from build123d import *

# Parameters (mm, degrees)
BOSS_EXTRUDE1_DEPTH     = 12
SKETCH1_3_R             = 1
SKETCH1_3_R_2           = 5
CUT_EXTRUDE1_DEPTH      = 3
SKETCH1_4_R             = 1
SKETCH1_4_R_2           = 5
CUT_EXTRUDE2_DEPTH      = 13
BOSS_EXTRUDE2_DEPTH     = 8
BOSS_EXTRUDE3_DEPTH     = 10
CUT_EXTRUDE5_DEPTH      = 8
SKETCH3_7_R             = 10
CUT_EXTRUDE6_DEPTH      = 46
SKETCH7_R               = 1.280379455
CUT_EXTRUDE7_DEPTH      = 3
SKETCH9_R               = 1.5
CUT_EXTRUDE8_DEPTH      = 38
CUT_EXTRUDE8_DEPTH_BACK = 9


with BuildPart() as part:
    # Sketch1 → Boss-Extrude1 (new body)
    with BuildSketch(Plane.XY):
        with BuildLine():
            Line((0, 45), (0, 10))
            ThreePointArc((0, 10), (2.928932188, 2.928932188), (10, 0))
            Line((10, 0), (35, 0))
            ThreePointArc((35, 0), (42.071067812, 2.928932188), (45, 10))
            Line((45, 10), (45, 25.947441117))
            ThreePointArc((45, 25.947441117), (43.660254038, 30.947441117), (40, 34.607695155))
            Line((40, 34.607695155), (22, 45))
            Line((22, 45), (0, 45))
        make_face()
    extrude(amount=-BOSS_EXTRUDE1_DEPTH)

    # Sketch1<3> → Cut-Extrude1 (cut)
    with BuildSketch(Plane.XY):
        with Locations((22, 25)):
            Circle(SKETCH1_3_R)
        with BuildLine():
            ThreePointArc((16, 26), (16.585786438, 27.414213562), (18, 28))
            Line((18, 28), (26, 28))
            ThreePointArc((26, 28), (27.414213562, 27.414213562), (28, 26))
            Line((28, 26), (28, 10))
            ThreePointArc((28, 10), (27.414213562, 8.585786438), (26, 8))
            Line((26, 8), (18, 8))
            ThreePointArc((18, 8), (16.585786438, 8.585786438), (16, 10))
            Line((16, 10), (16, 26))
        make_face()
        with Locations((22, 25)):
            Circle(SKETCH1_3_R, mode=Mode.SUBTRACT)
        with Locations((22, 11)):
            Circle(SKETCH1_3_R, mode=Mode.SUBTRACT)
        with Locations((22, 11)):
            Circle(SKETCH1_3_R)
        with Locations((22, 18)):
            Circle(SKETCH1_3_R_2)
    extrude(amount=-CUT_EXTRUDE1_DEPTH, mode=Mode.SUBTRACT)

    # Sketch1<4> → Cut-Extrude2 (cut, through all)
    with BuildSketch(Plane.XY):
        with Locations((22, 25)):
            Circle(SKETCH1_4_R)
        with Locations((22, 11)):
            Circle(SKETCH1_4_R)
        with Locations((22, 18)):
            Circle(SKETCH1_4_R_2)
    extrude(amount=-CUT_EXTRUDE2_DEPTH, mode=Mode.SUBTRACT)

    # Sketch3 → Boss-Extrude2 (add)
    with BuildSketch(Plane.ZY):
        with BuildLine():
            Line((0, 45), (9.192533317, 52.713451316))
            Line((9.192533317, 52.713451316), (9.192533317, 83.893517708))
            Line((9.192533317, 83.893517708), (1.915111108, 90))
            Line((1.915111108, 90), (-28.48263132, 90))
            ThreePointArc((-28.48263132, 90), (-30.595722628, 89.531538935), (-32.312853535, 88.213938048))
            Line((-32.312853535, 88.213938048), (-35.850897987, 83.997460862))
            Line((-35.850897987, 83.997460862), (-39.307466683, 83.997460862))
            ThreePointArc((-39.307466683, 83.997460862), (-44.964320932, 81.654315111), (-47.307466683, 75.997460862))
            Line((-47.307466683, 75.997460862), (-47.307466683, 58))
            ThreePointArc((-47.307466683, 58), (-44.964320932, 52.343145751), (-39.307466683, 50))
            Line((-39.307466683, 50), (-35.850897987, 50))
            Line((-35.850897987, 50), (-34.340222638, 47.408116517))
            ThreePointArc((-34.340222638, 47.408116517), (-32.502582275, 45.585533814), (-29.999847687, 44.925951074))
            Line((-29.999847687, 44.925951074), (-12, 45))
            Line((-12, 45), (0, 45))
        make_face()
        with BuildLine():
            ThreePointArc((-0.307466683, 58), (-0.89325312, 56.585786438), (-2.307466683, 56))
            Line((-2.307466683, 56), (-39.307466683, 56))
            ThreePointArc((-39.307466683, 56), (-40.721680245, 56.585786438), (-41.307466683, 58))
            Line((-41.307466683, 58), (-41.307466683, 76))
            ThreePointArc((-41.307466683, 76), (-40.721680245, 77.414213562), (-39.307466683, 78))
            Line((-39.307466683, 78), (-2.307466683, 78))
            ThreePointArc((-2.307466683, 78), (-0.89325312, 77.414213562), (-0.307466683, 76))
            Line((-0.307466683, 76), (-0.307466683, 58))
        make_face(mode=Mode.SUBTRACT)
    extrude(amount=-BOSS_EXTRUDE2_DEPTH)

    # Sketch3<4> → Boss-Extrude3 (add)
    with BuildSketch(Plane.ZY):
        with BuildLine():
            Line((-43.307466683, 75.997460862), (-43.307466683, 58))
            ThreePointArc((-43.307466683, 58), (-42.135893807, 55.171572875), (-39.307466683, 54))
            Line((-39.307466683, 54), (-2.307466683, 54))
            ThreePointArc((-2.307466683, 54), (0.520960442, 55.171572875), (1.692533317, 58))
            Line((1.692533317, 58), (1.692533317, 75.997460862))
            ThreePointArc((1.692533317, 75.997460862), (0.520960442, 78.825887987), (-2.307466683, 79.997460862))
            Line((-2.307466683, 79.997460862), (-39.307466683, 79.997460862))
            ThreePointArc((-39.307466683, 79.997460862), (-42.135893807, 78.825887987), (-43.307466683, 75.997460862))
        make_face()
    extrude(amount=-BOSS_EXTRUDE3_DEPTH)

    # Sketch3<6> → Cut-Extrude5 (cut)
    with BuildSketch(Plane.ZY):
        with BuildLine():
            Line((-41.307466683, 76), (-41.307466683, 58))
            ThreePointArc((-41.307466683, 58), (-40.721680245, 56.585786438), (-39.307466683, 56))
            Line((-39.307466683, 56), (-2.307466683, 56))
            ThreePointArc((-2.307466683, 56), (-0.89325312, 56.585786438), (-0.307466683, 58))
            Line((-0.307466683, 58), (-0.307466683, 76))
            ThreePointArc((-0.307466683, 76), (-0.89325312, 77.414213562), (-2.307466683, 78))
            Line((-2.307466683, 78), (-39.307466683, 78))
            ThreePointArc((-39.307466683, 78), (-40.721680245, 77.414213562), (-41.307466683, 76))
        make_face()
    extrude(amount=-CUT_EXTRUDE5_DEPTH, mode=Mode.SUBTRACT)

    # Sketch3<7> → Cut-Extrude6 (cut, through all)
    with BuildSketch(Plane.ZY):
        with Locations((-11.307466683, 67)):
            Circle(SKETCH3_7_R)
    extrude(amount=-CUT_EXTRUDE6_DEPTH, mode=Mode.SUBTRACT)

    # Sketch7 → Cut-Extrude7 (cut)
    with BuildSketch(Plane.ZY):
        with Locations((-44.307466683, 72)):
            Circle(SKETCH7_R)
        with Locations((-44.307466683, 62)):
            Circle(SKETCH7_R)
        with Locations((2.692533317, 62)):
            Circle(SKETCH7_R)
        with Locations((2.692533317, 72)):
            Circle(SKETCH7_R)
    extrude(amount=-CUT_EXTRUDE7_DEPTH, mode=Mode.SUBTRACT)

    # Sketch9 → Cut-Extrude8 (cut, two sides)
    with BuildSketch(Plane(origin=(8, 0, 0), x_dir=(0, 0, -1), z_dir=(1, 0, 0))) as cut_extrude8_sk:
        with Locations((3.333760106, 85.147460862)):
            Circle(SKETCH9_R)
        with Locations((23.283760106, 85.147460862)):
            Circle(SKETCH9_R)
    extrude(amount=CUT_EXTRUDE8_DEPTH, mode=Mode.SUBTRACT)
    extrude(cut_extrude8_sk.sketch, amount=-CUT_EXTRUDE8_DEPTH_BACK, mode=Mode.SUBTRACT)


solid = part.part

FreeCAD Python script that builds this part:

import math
import FreeCAD as App
import Part
import Sketcher
from FreeCAD import Vector
Q = App.Units.Quantity

doc = App.newDocument("Part")
body = doc.addObject("PartDesign::Body", "Body")

# Sketch on XY plane
sketch1 = body.newObject("Sketcher::SketchObject", "Sketch")
sketch1.AttachmentSupport = (doc.getObject("XY_Plane"), [""])
sketch1.MapMode = "FlatFace"
sketch1.addGeometry([
    Part.LineSegment(Vector(0, 45, 0), Vector(0, 10, 0)),  # 0
    Part.ArcOfCircle(Part.Circle(Vector(10, 10, 0), Vector(0, 0, 1), 10), math.radians(180), math.radians(270)),  # 1
    Part.LineSegment(Vector(10, 0, 0), Vector(35, 0, 0)),  # 2
    Part.ArcOfCircle(Part.Circle(Vector(35, 10, 0), Vector(0, 0, 1), 10), math.radians(-90), math.radians(0)),  # 3
    Part.LineSegment(Vector(45, 10, 0), Vector(45, 26, 0)),  # 4
    Part.ArcOfCircle(Part.Circle(Vector(35, 26, 0), Vector(0, 0, 1), 10), math.radians(0), math.radians(60)),  # 5
    Part.LineSegment(Vector(40, 35, 0), Vector(22, 45, 0)),  # 6
    Part.LineSegment(Vector(22, 45, 0), Vector(0, 45, 0)),  # 7
], False)
sketch1.addConstraint([
    Sketcher.Constraint("Tangent", 0, 2, 1, 1),
    Sketcher.Constraint("Tangent", 1, 2, 2, 1),
    Sketcher.Constraint("Tangent", 2, 2, 3, 1),
    Sketcher.Constraint("Tangent", 3, 2, 4, 1),
    Sketcher.Constraint("Tangent", 4, 2, 5, 1),
    Sketcher.Constraint("Tangent", 5, 2, 6, 1),
    Sketcher.Constraint("Coincident", 6, 2, 7, 1),
    Sketcher.Constraint("Coincident", 7, 2, 0, 1),
    Sketcher.Constraint("Vertical", 0),
    Sketcher.Constraint("Horizontal", 2),
    Sketcher.Constraint("Vertical", 4),
    Sketcher.Constraint("Horizontal", 7),
    Sketcher.Constraint("Equal", 1, 3),
    Sketcher.Constraint("Equal", 3, 5),
    Sketcher.Constraint("PointOnObject", 0, 2, -2),
    Sketcher.Constraint("PointOnObject", 1, 2, -1),
    Sketcher.Constraint("Radius", 1, Q("10 mm")),
    Sketcher.Constraint("DistanceX", 2, 1, 2, 2, Q("25 mm")),
    Sketcher.Constraint("DistanceX", 7, 2, 7, 1, Q("22 mm")),
    Sketcher.Constraint("DistanceY", 0, 2, 0, 1, Q("35 mm")),
    Sketcher.Constraint("Angle", 6, Q("150 deg")),
])
pad1 = body.newObject("PartDesign::Pad", "Pad")
pad1.Profile = sketch1
pad1.Length = 12
pad1.Reversed = True

# Sketch on XY plane
sketch2 = body.newObject("Sketcher::SketchObject", "Sketch001")
sketch2.AttachmentSupport = (doc.getObject("XY_Plane"), [""])
sketch2.MapMode = "FlatFace"
sketch2.addGeometry([
    Part.ArcOfCircle(Part.Circle(Vector(18, 26, 0), Vector(0, 0, 1), 2), math.radians(90), math.radians(180)),  # 0
    Part.LineSegment(Vector(16, 26, 0), Vector(16, 10, 0)),  # 1
    Part.ArcOfCircle(Part.Circle(Vector(18, 10, 0), Vector(0, 0, 1), 2), math.radians(-180), math.radians(-90)),  # 2
    Part.LineSegment(Vector(18, 8, 0), Vector(26, 8, 0)),  # 3
    Part.ArcOfCircle(Part.Circle(Vector(26, 10, 0), Vector(0, 0, 1), 2), math.radians(-90), math.radians(0)),  # 4
    Part.LineSegment(Vector(28, 10, 0), Vector(28, 26, 0)),  # 5
    Part.ArcOfCircle(Part.Circle(Vector(26, 26, 0), Vector(0, 0, 1), 2), math.radians(0), math.radians(90)),  # 6
    Part.LineSegment(Vector(26, 28, 0), Vector(18, 28, 0)),  # 7
    Part.Circle(Vector(22, 25, 0), Vector(0, 0, 1), 1),  # 8
], False)
sketch2.addConstraint([
    Sketcher.Constraint("Tangent", 0, 2, 1, 1),
    Sketcher.Constraint("Tangent", 1, 2, 2, 1),
    Sketcher.Constraint("Tangent", 2, 2, 3, 1),
    Sketcher.Constraint("Tangent", 3, 2, 4, 1),
    Sketcher.Constraint("Tangent", 4, 2, 5, 1),
    Sketcher.Constraint("Tangent", 5, 2, 6, 1),
    Sketcher.Constraint("Tangent", 6, 2, 7, 1),
    Sketcher.Constraint("Tangent", 7, 2, 0, 1),
    Sketcher.Constraint("Vertical", 1),
    Sketcher.Constraint("Horizontal", 3),
    Sketcher.Constraint("Vertical", 5),
    Sketcher.Constraint("Horizontal", 7),
    Sketcher.Constraint("Equal", 0, 2),
    Sketcher.Constraint("Equal", 2, 4),
    Sketcher.Constraint("Equal", 4, 6),
    Sketcher.Constraint("Diameter", 8, Q("2 mm")),
    Sketcher.Constraint("Radius", 0, Q("2 mm")),
    Sketcher.Constraint("DistanceX", 3, 1, 3, 2, Q("8 mm")),
    Sketcher.Constraint("DistanceY", 1, 2, 1, 1, Q("16 mm")),
    Sketcher.Constraint("DistanceX", -1, 1, 0, 3, Q("18 mm")),
    Sketcher.Constraint("DistanceY", -1, 1, 0, 3, Q("26 mm")),
    Sketcher.Constraint("DistanceX", -1, 1, 8, 3, Q("22 mm")),
    Sketcher.Constraint("DistanceY", -1, 1, 8, 3, Q("25 mm")),
])
pocket1 = body.newObject("PartDesign::Pocket", "Pocket")
pocket1.Profile = sketch2
pocket1.Length = 3

# Sketch on XY plane
sketch3 = body.newObject("Sketcher::SketchObject", "Sketch002")
sketch3.AttachmentSupport = (doc.getObject("XY_Plane"), [""])
sketch3.MapMode = "FlatFace"
sketch3.addGeometry([
    Part.Circle(Vector(22, 25, 0), Vector(0, 0, 1), 1),
    Part.Circle(Vector(22, 11, 0), Vector(0, 0, 1), 1),
    Part.Circle(Vector(22, 18, 0), Vector(0, 0, 1), 5),
], False)
sketch3.addConstraint([
    Sketcher.Constraint("Equal", 0, 1),
    Sketcher.Constraint("Vertical", 0, 3, 1, 3),
    Sketcher.Constraint("Vertical", 1, 3, 2, 3),
    Sketcher.Constraint("Diameter", 0, Q("2 mm")),
    Sketcher.Constraint("Diameter", 2, Q("10 mm")),
    Sketcher.Constraint("DistanceX", -1, 1, 0, 3, Q("22 mm")),
    Sketcher.Constraint("DistanceY", -1, 1, 0, 3, Q("25 mm")),
    Sketcher.Constraint("DistanceY", -1, 1, 1, 3, Q("11 mm")),
    Sketcher.Constraint("DistanceY", -1, 1, 2, 3, Q("18 mm")),
])
pocket2 = body.newObject("PartDesign::Pocket", "Pocket001")
pocket2.Profile = sketch3
pocket2.Type = "ThroughAll"

# Sketch on YZ plane
sketch4 = body.newObject("Sketcher::SketchObject", "Sketch003")
sketch4.AttachmentSupport = (doc.getObject("YZ_Plane"), [""])
sketch4.MapMode = "FlatFace"
sketch4.addGeometry([
    Part.LineSegment(Vector(45, 0, 0), Vector(52.7, 9.2, 0)),  # 0
    Part.LineSegment(Vector(52.7, 9.2, 0), Vector(83.9, 9.2, 0)),  # 1
    Part.LineSegment(Vector(83.9, 9.2, 0), Vector(90, 1.9, 0)),  # 2
    Part.LineSegment(Vector(90, 1.9, 0), Vector(90, -28.5, 0)),  # 3
    Part.ArcOfCircle(Part.Circle(Vector(85, -28.5, 0), Vector(0, 0, 1), 5), math.radians(-50), math.radians(0)),  # 4
    Part.LineSegment(Vector(88.2, -32.3, 0), Vector(84, -35.9, 0)),  # 5
    Part.LineSegment(Vector(84, -35.9, 0), Vector(84, -39.3, 0)),  # 6
    Part.ArcOfCircle(Part.Circle(Vector(76, -39.3, 0), Vector(0, 0, 1), 8), math.radians(-90), math.radians(0)),  # 7
    Part.LineSegment(Vector(76, -47.3, 0), Vector(58, -47.3, 0)),  # 8
    Part.ArcOfCircle(Part.Circle(Vector(58, -39.3, 0), Vector(0, 0, 1), 8), math.radians(-180), math.radians(-90)),  # 9
    Part.LineSegment(Vector(50, -39.3, 0), Vector(50, -35.9, 0)),  # 10
    Part.LineSegment(Vector(50, -35.9, 0), Vector(47.4, -34.3, 0)),  # 11
    Part.ArcOfCircle(Part.Circle(Vector(49.9, -30, 0), Vector(0, 0, 1), 5), math.radians(180), math.radians(240)),  # 12
    Part.LineSegment(Vector(44.9, -30, 0), Vector(45, -12, 0)),  # 13
    Part.LineSegment(Vector(45, -12, 0), Vector(45, 0, 0)),  # 14
    Part.LineSegment(Vector(76, -0.3, 0), Vector(58, -0.3, 0)),  # 15
    Part.ArcOfCircle(Part.Circle(Vector(58, -2.3, 0), Vector(0, 0, 1), 2), math.radians(90), math.radians(180)),  # 16
    Part.LineSegment(Vector(56, -2.3, 0), Vector(56, -39.3, 0)),  # 17
    Part.ArcOfCircle(Part.Circle(Vector(58, -39.3, 0), Vector(0, 0, 1), 2), math.radians(-180), math.radians(-90)),  # 18
    Part.LineSegment(Vector(58, -41.3, 0), Vector(76, -41.3, 0)),  # 19
    Part.ArcOfCircle(Part.Circle(Vector(76, -39.3, 0), Vector(0, 0, 1), 2), math.radians(-90), math.radians(0)),  # 20
    Part.LineSegment(Vector(78, -39.3, 0), Vector(78, -2.3, 0)),  # 21
    Part.ArcOfCircle(Part.Circle(Vector(76, -2.3, 0), Vector(0, 0, 1), 2), math.radians(0), math.radians(90)),  # 22
], False)
sketch4.addConstraint([
    Sketcher.Constraint("Coincident", 0, 2, 1, 1),
    Sketcher.Constraint("Coincident", 1, 2, 2, 1),
    Sketcher.Constraint("Coincident", 2, 2, 3, 1),
    Sketcher.Constraint("Tangent", 3, 2, 4, 2),
    Sketcher.Constraint("Tangent", 4, 1, 5, 1),
    Sketcher.Constraint("Coincident", 5, 2, 6, 1),
    Sketcher.Constraint("Tangent", 6, 2, 7, 2),
    Sketcher.Constraint("Tangent", 7, 1, 8, 1),
    Sketcher.Constraint("Tangent", 8, 2, 9, 2),
    Sketcher.Constraint("Tangent", 9, 1, 10, 1),
    Sketcher.Constraint("Coincident", 10, 2, 11, 1),
    Sketcher.Constraint("Tangent", 11, 2, 12, 2),
    Sketcher.Constraint("Tangent", 12, 1, 13, 1),
    Sketcher.Constraint("Coincident", 13, 2, 14, 1),
    Sketcher.Constraint("Coincident", 14, 2, 0, 1),
    Sketcher.Constraint("Tangent", 15, 2, 16, 1),
    Sketcher.Constraint("Tangent", 16, 2, 17, 1),
    Sketcher.Constraint("Tangent", 17, 2, 18, 1),
    Sketcher.Constraint("Tangent", 18, 2, 19, 1),
    Sketcher.Constraint("Tangent", 19, 2, 20, 1),
    Sketcher.Constraint("Tangent", 20, 2, 21, 1),
    Sketcher.Constraint("Tangent", 21, 2, 22, 1),
    Sketcher.Constraint("Tangent", 22, 2, 15, 1),
    Sketcher.Constraint("Horizontal", 1),
    Sketcher.Constraint("Vertical", 3),
    Sketcher.Constraint("Vertical", 6),
    Sketcher.Constraint("Horizontal", 8),
    Sketcher.Constraint("Vertical", 10),
    Sketcher.Constraint("Vertical", 14),
    Sketcher.Constraint("Horizontal", 15),
    Sketcher.Constraint("Vertical", 17),
    Sketcher.Constraint("Horizontal", 19),
    Sketcher.Constraint("Vertical", 21),
    Sketcher.Constraint("Coincident", 18, 3, 9, 3),
    Sketcher.Constraint("Equal", 7, 9),
    Sketcher.Constraint("Equal", 4, 12),
    Sketcher.Constraint("Equal", 16, 18),
    Sketcher.Constraint("Equal", 18, 20),
    Sketcher.Constraint("Equal", 20, 22),
    Sketcher.Constraint("PointOnObject", 14, 2, -1),
    Sketcher.Constraint("Perpendicular", 2, 5),
    Sketcher.Constraint("Horizontal", 5, 2, 10, 2),
    Sketcher.Constraint("Radius", 4, Q("5 mm")),
    Sketcher.Constraint("Radius", 7, Q("8 mm")),
    Sketcher.Constraint("Radius", 16, Q("2 mm")),
    Sketcher.Constraint("DistanceX", 15, 2, 15, 1, Q("18 mm")),
    Sketcher.Constraint("DistanceY", 14, 1, 14, 2, Q("12 mm")),
    Sketcher.Constraint("DistanceY", 17, 2, 17, 1, Q("37 mm")),
    Sketcher.Constraint("Angle", 0, Q("50 deg")),
    Sketcher.Constraint("Angle", 2, Q("-50 deg")),
    Sketcher.Constraint("Distance", 0, Q("12 mm")),
    Sketcher.Constraint("Distance", 11, Q("3 mm")),
    Sketcher.Constraint("Distance", 13, Q("18 mm")),
    Sketcher.Constraint("DistanceX", -1, 1, 4, 3, Q("85 mm")),
    Sketcher.Constraint("DistanceX", -1, 1, 9, 3, Q("58 mm")),
    Sketcher.Constraint("DistanceX", -1, 1, 13, 2, Q("45 mm")),
    Sketcher.Constraint("Distance", 2, Q("9.5 mm")),
    Sketcher.Constraint("DistanceY", 16, 3, 0, 2, Q("11.5 mm")),
    Sketcher.Constraint("DistanceX", 8, 2, 8, 1, Q("17.997461 mm")),
    Sketcher.Constraint("DistanceY", 6, 2, 6, 1, Q("3.456569 mm")),
])
pad2 = body.newObject("PartDesign::Pad", "Pad001")
pad2.Profile = sketch4
pad2.Length = 8

# Sketch on YZ plane
sketch5 = body.newObject("Sketcher::SketchObject", "Sketch004")
sketch5.AttachmentSupport = (doc.getObject("YZ_Plane"), [""])
sketch5.MapMode = "FlatFace"
sketch5.addGeometry([
    Part.LineSegment(Vector(76, -43.3, 0), Vector(58, -43.3, 0)),  # 0
    Part.ArcOfCircle(Part.Circle(Vector(58, -39.3, 0), Vector(0, 0, 1), 4), math.radians(-180), math.radians(-90)),  # 1
    Part.LineSegment(Vector(54, -39.3, 0), Vector(54, -2.3, 0)),  # 2
    Part.ArcOfCircle(Part.Circle(Vector(58, -2.3, 0), Vector(0, 0, 1), 4), math.radians(90), math.radians(180)),  # 3
    Part.LineSegment(Vector(58, 1.7, 0), Vector(76, 1.7, 0)),  # 4
    Part.ArcOfCircle(Part.Circle(Vector(76, -2.3, 0), Vector(0, 0, 1), 4), math.radians(0), math.radians(90)),  # 5
    Part.LineSegment(Vector(80, -2.3, 0), Vector(80, -39.3, 0)),  # 6
    Part.ArcOfCircle(Part.Circle(Vector(76, -39.3, 0), Vector(0, 0, 1), 4), math.radians(-90), math.radians(0)),  # 7
], False)
sketch5.addConstraint([
    Sketcher.Constraint("Tangent", 0, 2, 1, 2),
    Sketcher.Constraint("Tangent", 1, 1, 2, 1),
    Sketcher.Constraint("Tangent", 2, 2, 3, 2),
    Sketcher.Constraint("Tangent", 3, 1, 4, 1),
    Sketcher.Constraint("Tangent", 4, 2, 5, 2),
    Sketcher.Constraint("Tangent", 5, 1, 6, 1),
    Sketcher.Constraint("Tangent", 6, 2, 7, 2),
    Sketcher.Constraint("Tangent", 7, 1, 0, 1),
    Sketcher.Constraint("Horizontal", 0),
    Sketcher.Constraint("Vertical", 2),
    Sketcher.Constraint("Horizontal", 4),
    Sketcher.Constraint("Vertical", 6),
    Sketcher.Constraint("Equal", 1, 3),
    Sketcher.Constraint("Equal", 3, 5),
    Sketcher.Constraint("Equal", 5, 7),
    Sketcher.Constraint("Radius", 1, Q("4 mm")),
    Sketcher.Constraint("DistanceY", 2, 1, 2, 2, Q("37 mm")),
    Sketcher.Constraint("DistanceX", -1, 1, 1, 3, Q("58 mm")),
    Sketcher.Constraint("DistanceX", 0, 2, 0, 1, Q("17.997461 mm")),
    Sketcher.Constraint("DistanceY", 1, 3, -1, 1, Q("39.307467 mm")),
])
pad3 = body.newObject("PartDesign::Pad", "Pad002")
pad3.Profile = sketch5
pad3.Length = 10

# Sketch on YZ plane
sketch6 = body.newObject("Sketcher::SketchObject", "Sketch005")
sketch6.AttachmentSupport = (doc.getObject("YZ_Plane"), [""])
sketch6.MapMode = "FlatFace"
sketch6.addGeometry([
    Part.LineSegment(Vector(76, -41.3, 0), Vector(58, -41.3, 0)),  # 0
    Part.ArcOfCircle(Part.Circle(Vector(58, -39.3, 0), Vector(0, 0, 1), 2), math.radians(-180), math.radians(-90)),  # 1
    Part.LineSegment(Vector(56, -39.3, 0), Vector(56, -2.3, 0)),  # 2
    Part.ArcOfCircle(Part.Circle(Vector(58, -2.3, 0), Vector(0, 0, 1), 2), math.radians(90), math.radians(180)),  # 3
    Part.LineSegment(Vector(58, -0.3, 0), Vector(76, -0.3, 0)),  # 4
    Part.ArcOfCircle(Part.Circle(Vector(76, -2.3, 0), Vector(0, 0, 1), 2), math.radians(0), math.radians(90)),  # 5
    Part.LineSegment(Vector(78, -2.3, 0), Vector(78, -39.3, 0)),  # 6
    Part.ArcOfCircle(Part.Circle(Vector(76, -39.3, 0), Vector(0, 0, 1), 2), math.radians(-90), math.radians(0)),  # 7
], False)
sketch6.addConstraint([
    Sketcher.Constraint("Tangent", 0, 2, 1, 2),
    Sketcher.Constraint("Tangent", 1, 1, 2, 1),
    Sketcher.Constraint("Tangent", 2, 2, 3, 2),
    Sketcher.Constraint("Tangent", 3, 1, 4, 1),
    Sketcher.Constraint("Tangent", 4, 2, 5, 2),
    Sketcher.Constraint("Tangent", 5, 1, 6, 1),
    Sketcher.Constraint("Tangent", 6, 2, 7, 2),
    Sketcher.Constraint("Tangent", 7, 1, 0, 1),
    Sketcher.Constraint("Horizontal", 0),
    Sketcher.Constraint("Vertical", 2),
    Sketcher.Constraint("Horizontal", 4),
    Sketcher.Constraint("Vertical", 6),
    Sketcher.Constraint("Equal", 1, 3),
    Sketcher.Constraint("Equal", 3, 5),
    Sketcher.Constraint("Equal", 5, 7),
    Sketcher.Constraint("Radius", 1, Q("2 mm")),
    Sketcher.Constraint("DistanceX", 0, 2, 0, 1, Q("18 mm")),
    Sketcher.Constraint("DistanceY", 2, 1, 2, 2, Q("37 mm")),
    Sketcher.Constraint("DistanceX", -1, 1, 1, 3, Q("58 mm")),
    Sketcher.Constraint("DistanceY", 1, 3, -1, 1, Q("39.307467 mm")),
])
pocket3 = body.newObject("PartDesign::Pocket", "Pocket002")
pocket3.Profile = sketch6
pocket3.Length = 8
pocket3.Reversed = True

# Sketch on YZ plane
sketch7 = body.newObject("Sketcher::SketchObject", "Sketch006")
sketch7.AttachmentSupport = (doc.getObject("YZ_Plane"), [""])
sketch7.MapMode = "FlatFace"
sketch7.addGeometry(Part.Circle(Vector(67, -11, 0), Vector(0, 0, 1), 10), False)
sketch7.addConstraint([
    Sketcher.Constraint("Diameter", 0, Q("20 mm")),
    Sketcher.Constraint("DistanceX", -1, 1, 0, 3, Q("67 mm")),
    Sketcher.Constraint("DistanceY", 0, 3, -1, 1, Q("11.307467 mm")),
])
pocket4 = body.newObject("PartDesign::Pocket", "Pocket003")
pocket4.Profile = sketch7
pocket4.Type = "ThroughAll"
pocket4.Reversed = True

# Sketch on YZ plane
sketch8 = body.newObject("Sketcher::SketchObject", "Sketch007")
sketch8.AttachmentSupport = (doc.getObject("YZ_Plane"), [""])
sketch8.MapMode = "FlatFace"
sketch8.addGeometry([
    Part.Circle(Vector(72, -44.3, 0), Vector(0, 0, 1), 1.3),
    Part.Circle(Vector(62, -44.3, 0), Vector(0, 0, 1), 1.3),
    Part.Circle(Vector(62, 2.7, 0), Vector(0, 0, 1), 1.3),
    Part.Circle(Vector(72, 2.7, 0), Vector(0, 0, 1), 1.3),
], False)
sketch8.addConstraint([
    Sketcher.Constraint("Equal", 0, 1),
    Sketcher.Constraint("Equal", 1, 2),
    Sketcher.Constraint("Equal", 2, 3),
    Sketcher.Constraint("Horizontal", 0, 3, 1, 3),
    Sketcher.Constraint("Horizontal", 2, 3, 3, 3),
    Sketcher.Constraint("Vertical", 1, 3, 2, 3),
    Sketcher.Constraint("Vertical", 0, 3, 3, 3),
    Sketcher.Constraint("DistanceX", -1, 1, 0, 3, Q("72 mm")),
    Sketcher.Constraint("DistanceX", -1, 1, 1, 3, Q("62 mm")),
    Sketcher.Constraint("DistanceY", 1, 3, 2, 3, Q("47 mm")),
    Sketcher.Constraint("Diameter", 0, Q("2.560759 mm")),
    Sketcher.Constraint("DistanceY", 0, 3, -1, 1, Q("44.307467 mm")),
])
pocket5 = body.newObject("PartDesign::Pocket", "Pocket004")
pocket5.Profile = sketch8
pocket5.Length = 3
pocket5.Reversed = True

# Sketch on YZ plane
sketch9 = body.newObject("Sketcher::SketchObject", "Sketch008")
sketch9.AttachmentSupport = (doc.getObject("YZ_Plane"), [""])
sketch9.MapMode = "FlatFace"
sketch9.AttachmentOffset = App.Placement(Vector(0, 0, 8), App.Rotation())
sketch9.addGeometry([
    Part.Circle(Vector(85.1, -3.3, 0), Vector(0, 0, 1), 1.5),
    Part.Circle(Vector(85.1, -23.3, 0), Vector(0, 0, 1), 1.5),
], False)
sketch9.addConstraint([
    Sketcher.Constraint("Equal", 0, 1),
    Sketcher.Constraint("Vertical", 0, 3, 1, 3),
    Sketcher.Constraint("Diameter", 0, Q("3 mm")),
    Sketcher.Constraint("DistanceY", 1, 3, 0, 3, Q("19.95 mm")),
    Sketcher.Constraint("DistanceX", -1, 1, 0, 3, Q("85.147461 mm")),
    Sketcher.Constraint("DistanceY", 0, 3, -1, 1, Q("3.33376 mm")),
])
pocket6 = body.newObject("PartDesign::Pocket", "Pocket005")
pocket6.Profile = sketch9
pocket6.Type = "ThroughAll"
pocket6.Midplane = True

doc.recompute()
